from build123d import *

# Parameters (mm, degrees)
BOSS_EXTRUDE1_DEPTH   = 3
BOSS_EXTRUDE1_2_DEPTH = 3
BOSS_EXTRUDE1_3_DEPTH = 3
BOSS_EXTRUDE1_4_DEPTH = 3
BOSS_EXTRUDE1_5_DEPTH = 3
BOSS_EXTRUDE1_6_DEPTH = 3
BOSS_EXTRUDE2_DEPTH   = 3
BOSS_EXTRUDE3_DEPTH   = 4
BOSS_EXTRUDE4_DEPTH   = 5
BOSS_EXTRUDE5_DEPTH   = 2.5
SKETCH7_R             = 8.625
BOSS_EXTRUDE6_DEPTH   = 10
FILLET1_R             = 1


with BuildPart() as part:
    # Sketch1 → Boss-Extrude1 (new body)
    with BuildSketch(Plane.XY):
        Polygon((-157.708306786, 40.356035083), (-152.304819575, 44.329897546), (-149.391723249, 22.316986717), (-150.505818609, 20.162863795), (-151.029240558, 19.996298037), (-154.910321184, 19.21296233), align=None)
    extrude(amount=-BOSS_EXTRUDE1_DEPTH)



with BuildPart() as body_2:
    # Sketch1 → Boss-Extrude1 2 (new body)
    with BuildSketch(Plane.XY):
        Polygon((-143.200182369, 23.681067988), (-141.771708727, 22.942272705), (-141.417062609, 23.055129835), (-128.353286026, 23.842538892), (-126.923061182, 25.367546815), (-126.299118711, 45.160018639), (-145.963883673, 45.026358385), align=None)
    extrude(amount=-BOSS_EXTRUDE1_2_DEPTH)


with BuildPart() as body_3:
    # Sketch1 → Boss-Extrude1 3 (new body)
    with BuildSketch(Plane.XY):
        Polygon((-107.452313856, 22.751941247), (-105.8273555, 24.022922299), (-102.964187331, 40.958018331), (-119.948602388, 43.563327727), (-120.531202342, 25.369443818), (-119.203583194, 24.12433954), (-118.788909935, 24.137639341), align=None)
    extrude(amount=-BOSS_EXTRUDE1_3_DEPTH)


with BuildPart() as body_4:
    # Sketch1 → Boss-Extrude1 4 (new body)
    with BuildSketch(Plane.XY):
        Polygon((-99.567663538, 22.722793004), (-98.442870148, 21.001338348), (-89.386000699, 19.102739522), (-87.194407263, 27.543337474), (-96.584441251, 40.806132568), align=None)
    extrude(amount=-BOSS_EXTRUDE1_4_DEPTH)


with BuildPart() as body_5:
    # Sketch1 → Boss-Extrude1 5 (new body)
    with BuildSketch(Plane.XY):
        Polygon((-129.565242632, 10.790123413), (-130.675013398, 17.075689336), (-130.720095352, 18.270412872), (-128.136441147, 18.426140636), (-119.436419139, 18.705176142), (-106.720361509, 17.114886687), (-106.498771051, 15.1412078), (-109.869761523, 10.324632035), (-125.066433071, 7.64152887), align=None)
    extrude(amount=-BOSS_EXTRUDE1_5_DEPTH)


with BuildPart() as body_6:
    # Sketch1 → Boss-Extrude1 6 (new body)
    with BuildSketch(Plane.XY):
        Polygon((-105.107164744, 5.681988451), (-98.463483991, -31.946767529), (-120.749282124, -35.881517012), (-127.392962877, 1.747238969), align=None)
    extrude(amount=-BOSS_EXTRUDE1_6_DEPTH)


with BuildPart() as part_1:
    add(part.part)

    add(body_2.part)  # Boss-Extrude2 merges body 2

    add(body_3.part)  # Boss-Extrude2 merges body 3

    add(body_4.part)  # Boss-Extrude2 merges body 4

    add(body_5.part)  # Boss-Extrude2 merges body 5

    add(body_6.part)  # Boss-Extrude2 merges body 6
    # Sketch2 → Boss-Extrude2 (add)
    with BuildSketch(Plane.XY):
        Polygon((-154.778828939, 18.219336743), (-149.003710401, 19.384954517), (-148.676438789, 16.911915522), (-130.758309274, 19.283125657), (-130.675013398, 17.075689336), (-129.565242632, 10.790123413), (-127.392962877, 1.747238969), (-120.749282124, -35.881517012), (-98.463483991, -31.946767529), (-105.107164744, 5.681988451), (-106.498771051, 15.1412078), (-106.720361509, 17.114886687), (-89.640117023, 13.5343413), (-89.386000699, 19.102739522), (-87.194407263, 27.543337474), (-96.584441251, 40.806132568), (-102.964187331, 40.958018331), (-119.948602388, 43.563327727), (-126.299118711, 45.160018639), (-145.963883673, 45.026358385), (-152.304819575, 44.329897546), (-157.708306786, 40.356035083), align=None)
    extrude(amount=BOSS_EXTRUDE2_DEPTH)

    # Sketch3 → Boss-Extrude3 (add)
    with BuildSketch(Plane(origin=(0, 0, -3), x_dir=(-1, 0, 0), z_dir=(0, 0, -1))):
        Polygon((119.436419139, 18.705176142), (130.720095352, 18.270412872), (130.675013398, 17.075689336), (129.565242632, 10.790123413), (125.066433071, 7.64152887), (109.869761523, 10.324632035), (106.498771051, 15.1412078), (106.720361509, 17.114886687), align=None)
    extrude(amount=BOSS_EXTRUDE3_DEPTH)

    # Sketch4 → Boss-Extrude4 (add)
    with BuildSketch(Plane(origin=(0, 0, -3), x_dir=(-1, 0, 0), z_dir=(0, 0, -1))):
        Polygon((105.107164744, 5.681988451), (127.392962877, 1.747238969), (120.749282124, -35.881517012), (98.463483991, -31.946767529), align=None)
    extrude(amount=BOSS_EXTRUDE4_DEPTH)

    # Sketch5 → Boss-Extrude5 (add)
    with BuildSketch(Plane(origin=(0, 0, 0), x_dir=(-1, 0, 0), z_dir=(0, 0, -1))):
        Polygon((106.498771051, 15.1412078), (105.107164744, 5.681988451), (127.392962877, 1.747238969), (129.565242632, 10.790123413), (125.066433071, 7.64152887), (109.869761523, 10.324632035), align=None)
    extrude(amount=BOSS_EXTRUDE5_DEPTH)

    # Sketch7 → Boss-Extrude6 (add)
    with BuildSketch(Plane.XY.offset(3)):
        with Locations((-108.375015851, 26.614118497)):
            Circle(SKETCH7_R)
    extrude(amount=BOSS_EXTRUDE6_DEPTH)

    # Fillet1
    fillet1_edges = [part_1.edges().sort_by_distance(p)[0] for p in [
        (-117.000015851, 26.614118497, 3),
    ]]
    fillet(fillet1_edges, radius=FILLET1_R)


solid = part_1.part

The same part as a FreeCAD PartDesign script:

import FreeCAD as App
import Part
import Sketcher
from FreeCAD import Vector
Q = App.Units.Quantity


def edges_at(feature, points):
    """Names of the edges that pass closest to the given points."""
    edges = feature.Shape.Edges
    near = lambda p: min(range(len(edges)), key=lambda i: edges[i].distToShape(Part.Vertex(*p))[0])
    return sorted({f"Edge{near(p) + 1}" for p in points})


def add_polygon(sketch, points):
    """Adds a closed chain of lines whose ends are joined by coincident constraints."""
    first, n = sketch.GeometryCount, len(points)
    for a, b in zip(points, points[1:] + points[:1]):
        sketch.addGeometry(Part.LineSegment(App.Vector(*a, 0), App.Vector(*b, 0)), False)
    for i in range(n):
        sketch.addConstraint(Sketcher.Constraint("Coincident", first + i, 2, first + (i + 1) % n, 1))

doc = App.newDocument("Part")
body = doc.addObject("PartDesign::Body", "Body")

sketch1 = doc.addObject("Sketcher::SketchObject", "Sketch")
body.addObject(sketch1)
sketch1.AttachmentSupport = (doc.XY_Plane, [""])
sketch1.MapMode = "FlatFace"
add_polygon(sketch1, [(-152.30482, 44.329898), (-157.708307, 40.356035), (-154.910321, 19.212962), (-151.029241, 19.996298), (-150.505819, 20.162864), (-149.391723, 22.316987)])
sketch1.addConstraint(Sketcher.Constraint("Parallel", 1, 5))
sketch1.addConstraint(Sketcher.Constraint("DistanceX", 5, 2, 3, 2, Q("1.799001 mm")))
sketch1.addConstraint(Sketcher.Constraint("DistanceY", -1, 1, 2, 2, Q("19.996298 mm")))
sketch1.addConstraint(Sketcher.Constraint("DistanceY", 1, 2, 3, 2, Q("0.949901 mm")))
sketch1.addConstraint(Sketcher.Constraint("DistanceY", 2, 2, 5, 2, Q("24.3336 mm")))
sketch1.addConstraint(Sketcher.Constraint("DistanceX", 1, 2, 5, 2, Q("2.605502 mm")))
sketch1.addConstraint(Sketcher.Constraint("Distance", 4, Q("2.425171 mm")))
sketch1.addConstraint(Sketcher.Constraint("DistanceX", 1, 2, -1, 1, Q("154.910321 mm")))
sketch1.addConstraint(Sketcher.Constraint("DistanceX", 2, 2, -1, 1, Q("151.029241 mm")))
sketch1.addConstraint(Sketcher.Constraint("DistanceX", 0, 2, 3, 2, Q("7.202488 mm")))
sketch1.addConstraint(Sketcher.Constraint("DistanceY", 3, 2, 0, 2, Q("20.193171 mm")))
sketch1.addConstraint(Sketcher.Constraint("DistanceY", 2, 2, 4, 2, Q("2.320689 mm")))
pad1 = doc.addObject("PartDesign::Pad", "Pad")
body.addObject(pad1)
pad1.Profile = sketch1
pad1.Length = 3
pad1.Reversed = True
body2 = doc.addObject("PartDesign::Body", "Body001")

sketch2 = doc.addObject("Sketcher::SketchObject", "Sketch001")
body2.addObject(sketch2)
sketch2.AttachmentSupport = (doc.getObject("XY_Plane001"), [""])
sketch2.MapMode = "FlatFace"
add_polygon(sketch2, [(-143.200182, 23.681068), (-141.771709, 22.942273), (-141.417063, 23.05513), (-128.353286, 23.842539), (-126.923061, 25.367547), (-126.299119, 45.160019), (-145.963884, 45.026358)])
sketch2.addConstraint(Sketcher.Constraint("DistanceX", 1, 2, 3, 2, Q("14.494001 mm")))
sketch2.addConstraint(Sketcher.Constraint("DistanceX", 5, 2, 6, 2, Q("2.763701 mm")))
sketch2.addConstraint(Sketcher.Constraint("Distance", 1, Q("0.37217 mm")))
sketch2.addConstraint(Sketcher.Constraint("Distance", 3, Q("2.09074 mm")))
sketch2.addConstraint(Sketcher.Constraint("Distance", 5, Q("19.665219 mm")))
sketch2.addConstraint(Sketcher.Constraint("DistanceX", 0, 2, -1, 1, Q("141.771709 mm")))
sketch2.addConstraint(Sketcher.Constraint("DistanceY", -1, 1, 1, 2, Q("23.05513 mm")))
sketch2.addConstraint(Sketcher.Constraint("DistanceY", -1, 1, 2, 2, Q("23.842539 mm")))
sketch2.addConstraint(Sketcher.Constraint("DistanceX", 3, 2, -1, 1, Q("126.923061 mm")))
sketch2.addConstraint(Sketcher.Constraint("DistanceX", 4, 2, -1, 1, Q("126.299119 mm")))
sketch2.addConstraint(Sketcher.Constraint("DistanceY", -1, 1, 4, 2, Q("45.160019 mm")))
sketch2.addConstraint(Sketcher.Constraint("DistanceY", -1, 1, 5, 2, Q("45.026358 mm")))
sketch2.addConstraint(Sketcher.Constraint("DistanceY", 3, 2, 4, 2, Q("19.792472 mm")))
sketch2.addConstraint(Sketcher.Constraint("DistanceY", 1, 2, 6, 2, Q("0.625938 mm")))
pad2 = doc.addObject("PartDesign::Pad", "Pad001")
body2.addObject(pad2)
pad2.Profile = sketch2
pad2.Length = 3
pad2.Reversed = True
body3 = doc.addObject("PartDesign::Body", "Body002")

sketch3 = doc.addObject("Sketcher::SketchObject", "Sketch002")
body3.addObject(sketch3)
sketch3.AttachmentSupport = (doc.getObject("XY_Plane002"), [""])
sketch3.MapMode = "FlatFace"
add_polygon(sketch3, [(-107.452314, 22.751941), (-105.827355, 24.022922), (-102.964187, 40.958018), (-119.948602, 43.563328), (-120.531202, 25.369444), (-119.203583, 24.12434), (-118.78891, 24.137639)])
sketch3.addConstraint(Sketcher.Constraint("DistanceX", 3, 2, 2, 2, Q("0.5826 mm")))
sketch3.addConstraint(Sketcher.Constraint("DistanceY", 4, 2, 5, 2, Q("0.0133 mm")))
sketch3.addConstraint(Sketcher.Constraint("DistanceY", 6, 2, 5, 2, Q("1.385698 mm")))
sketch3.addConstraint(Sketcher.Constraint("Distance", 0, Q("2.062979 mm")))
sketch3.addConstraint(Sketcher.Constraint("Distance", 3, Q("18.203209 mm")))
sketch3.addConstraint(Sketcher.Constraint("Distance", 6, Q("11.420971 mm")))
sketch3.addConstraint(Sketcher.Constraint("DistanceY", -1, 1, 1, 2, Q("40.958018 mm")))
sketch3.addConstraint(Sketcher.Constraint("DistanceY", -1, 1, 4, 2, Q("24.12434 mm")))
sketch3.addConstraint(Sketcher.Constraint("DistanceX", 5, 2, -1, 1, Q("118.78891 mm")))
sketch3.addConstraint(Sketcher.Constraint("DistanceX", 0, 2, 1, 2, Q("2.863168 mm")))
sketch3.addConstraint(Sketcher.Constraint("DistanceY", 1, 2, 2, 2, Q("2.605309 mm")))
sketch3.addConstraint(Sketcher.Constraint("DistanceY", 0, 2, 3, 2, Q("1.346522 mm")))
sketch3.addConstraint(Sketcher.Constraint("DistanceX", 3, 2, 4, 2, Q("1.327619 mm")))
sketch3.addConstraint(Sketcher.Constraint("DistanceX", 4, 2, 6, 2, Q("11.751269 mm")))
pad3 = doc.addObject("PartDesign::Pad", "Pad002")
body3.addObject(pad3)
pad3.Profile = sketch3
pad3.Length = 3
pad3.Reversed = True
body4 = doc.addObject("PartDesign::Body", "Body003")

sketch4 = doc.addObject("Sketcher::SketchObject", "Sketch003")
body4.addObject(sketch4)
sketch4.AttachmentSupport = (doc.getObject("XY_Plane003"), [""])
sketch4.MapMode = "FlatFace"
add_polygon(sketch4, [(-99.567664, 22.722793), (-98.44287, 21.001338), (-89.386001, 19.10274), (-87.194407, 27.543337), (-96.584441, 40.806133)])
sketch4.addConstraint(Sketcher.Constraint("DistanceX", 1, 2, -1, 1, Q("89.386001 mm")))
sketch4.addConstraint(Sketcher.Constraint("DistanceY", 0, 2, 2, 2, Q("6.541999 mm")))
sketch4.addConstraint(Sketcher.Constraint("DistanceY", 1, 2, 0, 2, Q("1.898599 mm")))
sketch4.addConstraint(Sketcher.Constraint("Distance", 2, Q("8.72048 mm")))
sketch4.addConstraint(Sketcher.Constraint("Distance", 3, Q("16.250368 mm")))
sketch4.addConstraint(Sketcher.Constraint("Distance", 4, Q("18.32776 mm")))
sketch4.addConstraint(Sketcher.Constraint("DistanceX", 0, 2, -1, 1, Q("98.44287 mm")))
sketch4.addConstraint(Sketcher.Constraint("DistanceY", -1, 1, 0, 2, Q("21.001338 mm")))
sketch4.addConstraint(Sketcher.Constraint("DistanceX", 3, 2, -1, 1, Q("96.584441 mm")))
sketch4.addConstraint(Sketcher.Constraint("DistanceY", 4, 2, 3, 2, Q("18.08334 mm")))
pad4 = doc.addObject("PartDesign::Pad", "Pad003")
body4.addObject(pad4)
pad4.Profile = sketch4
pad4.Length = 3
pad4.Reversed = True
body5 = doc.addObject("PartDesign::Body", "Body004")

sketch5 = doc.addObject("Sketcher::SketchObject", "Sketch004")
body5.addObject(sketch5)
sketch5.AttachmentSupport = (doc.getObject("XY_Plane004"), [""])
sketch5.MapMode = "FlatFace"
add_polygon(sketch5, [(-130.675013, 17.075689), (-129.565243, 10.790123), (-125.066433, 7.641529), (-109.869762, 10.324632), (-106.498771, 15.141208), (-106.720362, 17.114887), (-119.436419, 18.705176), (-128.136441, 18.426141), (-130.720095, 18.270413)])
sketch5.addConstraint(Sketcher.Constraint("Perpendicular", 0, 2))
sketch5.addConstraint(Sketcher.Constraint("Perpendicular", 1, 3))
sketch5.addConstraint(Sketcher.Constraint("DistanceX", 2, 2, 4, 2, Q("3.1494 mm")))
sketch5.addConstraint(Sketcher.Constraint("DistanceX", 0, 2, 6, 2, Q("1.428801 mm")))
sketch5.addConstraint(Sketcher.Constraint("Distance", 1, Q("5.491169 mm")))
sketch5.addConstraint(Sketcher.Constraint("Distance", 3, Q("5.879029 mm")))
sketch5.addConstraint(Sketcher.Constraint("Distance", 4, Q("1.986079 mm")))
sketch5.addConstraint(Sketcher.Constraint("DistanceY", -1, 1, 1, 2, Q("7.641529 mm")))
sketch5.addConstraint(Sketcher.Constraint("DistanceX", 2, 2, -1, 1, Q("109.869762 mm")))
sketch5.addConstraint(Sketcher.Constraint("DistanceX", 3, 2, -1, 1, Q("106.498771 mm")))
sketch5.addConstraint(Sketcher.Constraint("DistanceX", 5, 2, -1, 1, Q("119.436419 mm")))
sketch5.addConstraint(Sketcher.Constraint("DistanceX", 6, 2, -1, 1, Q("128.136441 mm")))
sketch5.addConstraint(Sketcher.Constraint("DistanceY", -1, 1, 6, 2, Q("18.426141 mm")))
sketch5.addConstraint(Sketcher.Constraint("DistanceY", -1, 1, 8, 2, Q("17.075689 mm")))
sketch5.addConstraint(Sketcher.Constraint("DistanceY", 2, 2, 0, 2, Q("0.465491 mm")))
sketch5.addConstraint(Sketcher.Constraint("DistanceY", 4, 2, 5, 2, Q("1.590289 mm")))
sketch5.addConstraint(Sketcher.Constraint("DistanceY", 0, 2, 7, 2, Q("7.480289 mm")))
sketch5.addConstraint(Sketcher.Constraint("DistanceX", 7, 2, 8, 2, Q("0.045082 mm")))
pad5 = doc.addObject("PartDesign::Pad", "Pad004")
body5.addObject(pad5)
pad5.Profile = sketch5
pad5.Length = 3
pad5.Reversed = True
body6 = doc.addObject("PartDesign::Body", "Body005")

sketch6 = doc.addObject("Sketcher::SketchObject", "Sketch005")
body6.addObject(sketch6)
sketch6.AttachmentSupport = (doc.getObject("XY_Plane005"), [""])
sketch6.MapMode = "FlatFace"
add_polygon(sketch6, [(-98.463484, -31.946768), (-105.107165, 5.681988), (-127.392963, 1.747239), (-120.749282, -35.881517)])
sketch6.addConstraint(Sketcher.Constraint("Perpendicular", 0, 1))
sketch6.addConstraint(Sketcher.Constraint("Perpendicular", 1, 2))
sketch6.addConstraint(Sketcher.Constraint("Perpendicular", 2, 3))
sketch6.addConstraint(Sketcher.Constraint("DistanceX", 1, 2, 0, 2, Q("22.285798 mm")))
sketch6.addConstraint(Sketcher.Constraint("Distance", 1, Q("22.630489 mm")))
sketch6.addConstraint(Sketcher.Constraint("DistanceY", -1, 1, 0, 2, Q("5.681988 mm")))
sketch6.addConstraint(Sketcher.Constraint("DistanceX", 1, 2, 2, 2, Q("6.643681 mm")))
sketch6.addConstraint(Sketcher.Constraint("DistanceX", 0, 2, -1, 1, Q("105.107165 mm")))
pad6 = doc.addObject("PartDesign::Pad", "Pad005")
body6.addObject(pad6)
pad6.Profile = sketch6
pad6.Length = 3
pad6.Reversed = True
body.AllowCompound = True
doc.recompute()

boolean = doc.addObject("PartDesign::Boolean", "Boolean")
body.addObject(boolean)
boolean.Type = "Fuse"
boolean.addObjects([body2])
doc.recompute()

boolean2 = doc.addObject("PartDesign::Boolean", "Boolean001")
body.addObject(boolean2)
boolean2.Type = "Fuse"
boolean2.addObjects([body3])
doc.recompute()

boolean3 = doc.addObject("PartDesign::Boolean", "Boolean002")
body.addObject(boolean3)
boolean3.Type = "Fuse"
boolean3.addObjects([body4])
doc.recompute()

boolean4 = doc.addObject("PartDesign::Boolean", "Boolean003")
body.addObject(boolean4)
boolean4.Type = "Fuse"
boolean4.addObjects([body5])
doc.recompute()

boolean5 = doc.addObject("PartDesign::Boolean", "Boolean004")
body.addObject(boolean5)
boolean5.Type = "Fuse"
boolean5.addObjects([body6])

sketch7 = doc.addObject("Sketcher::SketchObject", "Sketch006")
body.addObject(sketch7)
sketch7.AttachmentSupport = (doc.XY_Plane, [""])
sketch7.MapMode = "FlatFace"
add_polygon(sketch7, [(-154.778829, 18.219337), (-149.00371, 19.384955), (-148.676439, 16.911916), (-130.758309, 19.283126), (-130.675013, 17.075689), (-129.565243, 10.790123), (-127.392963, 1.747239), (-120.749282, -35.881517), (-98.463484, -31.946768), (-105.107165, 5.681988), (-106.498771, 15.141208), (-106.720362, 17.114887), (-89.640117, 13.534341), (-89.386001, 19.10274), (-87.194407, 27.543337), (-96.584441, 40.806133), (-102.964187, 40.958018), (-119.948602, 43.563328), (-126.299119, 45.160019), (-145.963884, 45.026358), (-152.30482, 44.329898), (-157.708307, 40.356035)])
sketch7.addConstraint(Sketcher.Constraint("Perpendicular", 1, 2))
sketch7.addConstraint(Sketcher.Constraint("Parallel", 4, 6))
sketch7.addConstraint(Sketcher.Constraint("Perpendicular", 6, 7))
sketch7.addConstraint(Sketcher.Constraint("Perpendicular", 7, 8))
sketch7.addConstraint(Sketcher.Constraint("Perpendicular", 2, 21))
sketch7.addConstraint(Sketcher.Constraint("Equal", 6, 8))
sketch7.addConstraint(Sketcher.Constraint("DistanceX", 12, 2, -1, 1, Q("89.386001 mm")))
sketch7.addConstraint(Sketcher.Constraint("DistanceY", 15, 2, 17, 2, Q("4.202 mm")))
sketch7.addConstraint(Sketcher.Constraint("Distance", 1, Q("2.4946 mm")))
sketch7.addConstraint(Sketcher.Constraint("DistanceX", 0, 2, 2, 2, Q("18.245401 mm")))
sketch7.addConstraint(Sketcher.Constraint("DistanceX", 6, 2, 7, 2, Q("22.285798 mm")))
sketch7.addConstraint(Sketcher.Constraint("DistanceY", 8, 2, 3, 2, Q("11.393701 mm")))
sketch7.addConstraint(Sketcher.Constraint("DistanceY", 8, 2, 10, 2, Q("11.432898 mm")))
sketch7.addConstraint(Sketcher.Constraint("DistanceY", 11, 2, 12, 2, Q("5.568398 mm")))
sketch7.addConstraint(Sketcher.Constraint("DistanceX", 19, 2, 17, 2, Q("26.005701 mm")))
sketch7.addConstraint(Sketcher.Constraint("DistanceY", 21, 2, 20, 2, Q("22.136698 mm")))
sketch7.addConstraint(Sketcher.Constraint("Distance", 7, Q("22.630489 mm")))
sketch7.addConstraint(Sketcher.Constraint("Distance", 10, Q("1.986079 mm")))
sketch7.addConstraint(Sketcher.Constraint("Distance", 13, Q("8.72048 mm")))
sketch7.addConstraint(Sketcher.Constraint("Distance", 14, Q("16.250368 mm")))
sketch7.addConstraint(Sketcher.Constraint("Distance", 18, Q("19.665219 mm")))
sketch7.addConstraint(Sketcher.Constraint("Distance", 19, Q("6.379069 mm")))
sketch7.addConstraint(Sketcher.Constraint("DistanceX", 0, 2, -1, 1, Q("149.00371 mm")))
sketch7.addConstraint(Sketcher.Constraint("DistanceX", 1, 2, -1, 1, Q("148.676439 mm")))
sketch7.addConstraint(Sketcher.Constraint("DistanceY", -1, 1, 3, 2, Q("17.075689 mm")))
sketch7.addConstraint(Sketcher.Constraint("DistanceX", 9, 2, -1, 1, Q("106.498771 mm")))
sketch7.addConstraint(Sketcher.Constraint("DistanceX", 10, 2, -1, 1, Q("106.720362 mm")))
sketch7.addConstraint(Sketcher.Constraint("DistanceY", -1, 1, 11, 2, Q("13.534341 mm")))
sketch7.addConstraint(Sketcher.Constraint("DistanceX", 14, 2, -1, 1, Q("96.584441 mm")))
sketch7.addConstraint(Sketcher.Constraint("DistanceY", -1, 1, 15, 2, Q("40.958018 mm")))
sketch7.addConstraint(Sketcher.Constraint("DistanceX", 17, 2, -1, 1, Q("126.299119 mm")))
sketch7.addConstraint(Sketcher.Constraint("DistanceY", -1, 1, 18, 2, Q("45.026358 mm")))
sketch7.addConstraint(Sketcher.Constraint("DistanceX", 21, 2, -1, 1, Q("154.778829 mm")))
sketch7.addConstraint(Sketcher.Constraint("DistanceX", 3, 2, 4, 2, Q("1.109771 mm")))
sketch7.addConstraint(Sketcher.Constraint("DistanceY", 4, 2, 0, 2, Q("8.594831 mm")))
sketch7.addConstraint(Sketcher.Constraint("DistanceX", 4, 2, 5, 2, Q("2.17228 mm")))
sketch7.addConstraint(Sketcher.Constraint("DistanceX", 5, 2, 6, 2, Q("6.643681 mm")))
sketch7.addConstraint(Sketcher.Constraint("DistanceX", 4, 2, 9, 2, Q("23.066472 mm")))
sketch7.addConstraint(Sketcher.Constraint("DistanceX", 11, 2, 13, 2, Q("2.44571 mm")))
sketch7.addConstraint(Sketcher.Constraint("DistanceY", 10, 2, 13, 2, Q("10.428451 mm")))
sketch7.addConstraint(Sketcher.Constraint("DistanceX", 15, 2, 13, 2, Q("15.76978 mm")))
sketch7.addConstraint(Sketcher.Constraint("DistanceY", 15, 2, 16, 2, Q("2.605309 mm")))
sketch7.addConstraint(Sketcher.Constraint("DistanceX", 16, 2, 14, 2, Q("23.364161 mm")))
sketch7.addConstraint(Sketcher.Constraint("DistanceY", 0, 2, 20, 2, Q("20.971081 mm")))
pad7 = doc.addObject("PartDesign::Pad", "Pad006")
body.addObject(pad7)
pad7.Profile = sketch7
pad7.Length = 3

sketch8 = doc.addObject("Sketcher::SketchObject", "Sketch007")
body.addObject(sketch8)
sketch8.AttachmentSupport = (doc.XY_Plane, [""])
sketch8.MapMode = "FlatFace"
sketch8.AttachmentOffset = App.Placement(Vector(0, 0, -3), App.Rotation())
add_polygon(sketch8, [(-130.720095, 18.270413), (-119.436419, 18.705176), (-106.720362, 17.114887), (-106.498771, 15.141208), (-109.869762, 10.324632), (-125.066433, 7.641529), (-129.565243, 10.790123), (-130.675013, 17.075689)])
sketch8.addConstraint(Sketcher.Constraint("Perpendicular", 3, 5))
sketch8.addConstraint(Sketcher.Constraint("Perpendicular", 4, 6))
sketch8.addConstraint(Sketcher.Constraint("DistanceX", 3, 2, 1, 2, Q("3.1494 mm")))
sketch8.addConstraint(Sketcher.Constraint("Distance", 0, Q("11.292049 mm")))
sketch8.addConstraint(Sketcher.Constraint("Distance", 2, Q("1.986079 mm")))
sketch8.addConstraint(Sketcher.Constraint("Distance", 3, Q("5.879029 mm")))
sketch8.addConstraint(Sketcher.Constraint("Distance", 5, Q("5.491169 mm")))
sketch8.addConstraint(Sketcher.Constraint("DistanceX", 0, 2, -1, 1, Q("119.436419 mm")))
sketch8.addConstraint(Sketcher.Constraint("DistanceX", 1, 2, -1, 1, Q("106.720362 mm")))
sketch8.addConstraint(Sketcher.Constraint("DistanceX", 2, 2, -1, 1, Q("106.498771 mm")))
sketch8.addConstraint(Sketcher.Constraint("DistanceY", -1, 1, 4, 2, Q("7.641529 mm")))
sketch8.addConstraint(Sketcher.Constraint("DistanceY", -1, 1, 6, 2, Q("17.075689 mm")))
sketch8.addConstraint(Sketcher.Constraint("DistanceY", 1, 2, 0, 2, Q("1.590289 mm")))
sketch8.addConstraint(Sketcher.Constraint("DistanceX", 4, 2, 3, 2, Q("15.196672 mm")))
sketch8.addConstraint(Sketcher.Constraint("DistanceY", 4, 2, 2, 2, Q("7.499679 mm")))
sketch8.addConstraint(Sketcher.Constraint("DistanceX", 7, 2, 6, 2, Q("0.045082 mm")))
pad8 = doc.addObject("PartDesign::Pad", "Pad007")
body.addObject(pad8)
pad8.Profile = sketch8
pad8.Length = 4
pad8.Reversed = True

sketch9 = doc.addObject("Sketcher::SketchObject", "Sketch008")
body.addObject(sketch9)
sketch9.AttachmentSupport = (doc.XY_Plane, [""])
sketch9.MapMode = "FlatFace"
sketch9.AttachmentOffset = App.Placement(Vector(0, 0, -3), App.Rotation())
add_polygon(sketch9, [(-127.392963, 1.747239), (-105.107165, 5.681988), (-98.463484, -31.946768), (-120.749282, -35.881517)])
sketch9.addConstraint(Sketcher.Constraint("Perpendicular", 0, 1))
sketch9.addConstraint(Sketcher.Constraint("Perpendicular", 1, 2))
sketch9.addConstraint(Sketcher.Constraint("Perpendicular", 2, 3))
sketch9.addConstraint(Sketcher.Constraint("DistanceX", 2, 2, 1, 2, Q("22.285798 mm")))
sketch9.addConstraint(Sketcher.Constraint("Distance", 0, Q("22.630489 mm")))
sketch9.addConstraint(Sketcher.Constraint("DistanceY", -1, 1, 0, 2, Q("5.681988 mm")))
sketch9.addConstraint(Sketcher.Constraint("DistanceX", 0, 2, 1, 2, Q("6.643681 mm")))
sketch9.addConstraint(Sketcher.Constraint("DistanceX", 0, 2, -1, 1, Q("105.107165 mm")))
pad9 = doc.addObject("PartDesign::Pad", "Pad008")
body.addObject(pad9)
pad9.Profile = sketch9
pad9.Length = 5
pad9.Reversed = True

sketch10 = doc.addObject("Sketcher::SketchObject", "Sketch009")
body.addObject(sketch10)
sketch10.AttachmentSupport = (doc.XY_Plane, [""])
sketch10.MapMode = "FlatFace"
add_polygon(sketch10, [(-106.498771, 15.141208), (-105.107165, 5.681988), (-127.392963, 1.747239), (-129.565243, 10.790123), (-125.066433, 7.641529), (-109.869762, 10.324632)])
sketch10.addConstraint(Sketcher.Constraint("Parallel", 1, 4))
sketch10.addConstraint(Sketcher.Constraint("Perpendicular", 3, 5))
sketch10.addConstraint(Sketcher.Constraint("DistanceX", 1, 2, 0, 2, Q("22.285798 mm")))
sketch10.addConstraint(Sketcher.Constraint("DistanceX", 1, 2, 4, 2, Q("17.523201 mm")))
sketch10.addConstraint(Sketcher.Constraint("Distance", 1, Q("22.630489 mm")))
sketch10.addConstraint(Sketcher.Constraint("Distance", 3, Q("5.491169 mm")))
sketch10.addConstraint(Sketcher.Constraint("Distance", 5, Q("5.879029 mm")))
sketch10.addConstraint(Sketcher.Constraint("DistanceY", -1, 1, 0, 2, Q("5.681988 mm")))
sketch10.addConstraint(Sketcher.Constraint("DistanceY", -1, 1, 3, 2, Q("7.641529 mm")))
sketch10.addConstraint(Sketcher.Constraint("DistanceX", 4, 2, -1, 1, Q("109.869762 mm")))
sketch10.addConstraint(Sketcher.Constraint("DistanceX", 5, 2, -1, 1, Q("106.498771 mm")))
sketch10.addConstraint(Sketcher.Constraint("DistanceX", 2, 2, 1, 2, Q("2.17228 mm")))
pad10 = doc.addObject("PartDesign::Pad", "Pad009")
body.addObject(pad10)
pad10.Profile = sketch10
pad10.Length = 2.5
pad10.Reversed = True

sketch11 = doc.addObject("Sketcher::SketchObject", "Sketch010")
body.addObject(sketch11)
sketch11.AttachmentSupport = (doc.XY_Plane, [""])
sketch11.MapMode = "FlatFace"
sketch11.AttachmentOffset = App.Placement(Vector(0, 0, 3), App.Rotation())
sketch11.addGeometry(Part.Circle(Vector(-108.375016, 26.614118, 0), Vector(0, 0, 1), 8.625), False)
sketch11.addConstraint(Sketcher.Constraint("Diameter", 0, Q("17.25 mm")))
sketch11.addConstraint(Sketcher.Constraint("DistanceY", -1, 1, 0, 3, Q("26.614118 mm")))
sketch11.addConstraint(Sketcher.Constraint("DistanceX", 0, 3, -1, 1, Q("108.375016 mm")))
pad11 = doc.addObject("PartDesign::Pad", "Pad010")
body.addObject(pad11)
pad11.Profile = sketch11
pad11.Length = 10
doc.recompute()

fillet = doc.addObject("PartDesign::Fillet", "Fillet")
body.addObject(fillet)
fillet.Base = (pad11, edges_at(pad11, [(-117, 26.614, 3)]))
fillet.Radius = 1

doc.recompute()
